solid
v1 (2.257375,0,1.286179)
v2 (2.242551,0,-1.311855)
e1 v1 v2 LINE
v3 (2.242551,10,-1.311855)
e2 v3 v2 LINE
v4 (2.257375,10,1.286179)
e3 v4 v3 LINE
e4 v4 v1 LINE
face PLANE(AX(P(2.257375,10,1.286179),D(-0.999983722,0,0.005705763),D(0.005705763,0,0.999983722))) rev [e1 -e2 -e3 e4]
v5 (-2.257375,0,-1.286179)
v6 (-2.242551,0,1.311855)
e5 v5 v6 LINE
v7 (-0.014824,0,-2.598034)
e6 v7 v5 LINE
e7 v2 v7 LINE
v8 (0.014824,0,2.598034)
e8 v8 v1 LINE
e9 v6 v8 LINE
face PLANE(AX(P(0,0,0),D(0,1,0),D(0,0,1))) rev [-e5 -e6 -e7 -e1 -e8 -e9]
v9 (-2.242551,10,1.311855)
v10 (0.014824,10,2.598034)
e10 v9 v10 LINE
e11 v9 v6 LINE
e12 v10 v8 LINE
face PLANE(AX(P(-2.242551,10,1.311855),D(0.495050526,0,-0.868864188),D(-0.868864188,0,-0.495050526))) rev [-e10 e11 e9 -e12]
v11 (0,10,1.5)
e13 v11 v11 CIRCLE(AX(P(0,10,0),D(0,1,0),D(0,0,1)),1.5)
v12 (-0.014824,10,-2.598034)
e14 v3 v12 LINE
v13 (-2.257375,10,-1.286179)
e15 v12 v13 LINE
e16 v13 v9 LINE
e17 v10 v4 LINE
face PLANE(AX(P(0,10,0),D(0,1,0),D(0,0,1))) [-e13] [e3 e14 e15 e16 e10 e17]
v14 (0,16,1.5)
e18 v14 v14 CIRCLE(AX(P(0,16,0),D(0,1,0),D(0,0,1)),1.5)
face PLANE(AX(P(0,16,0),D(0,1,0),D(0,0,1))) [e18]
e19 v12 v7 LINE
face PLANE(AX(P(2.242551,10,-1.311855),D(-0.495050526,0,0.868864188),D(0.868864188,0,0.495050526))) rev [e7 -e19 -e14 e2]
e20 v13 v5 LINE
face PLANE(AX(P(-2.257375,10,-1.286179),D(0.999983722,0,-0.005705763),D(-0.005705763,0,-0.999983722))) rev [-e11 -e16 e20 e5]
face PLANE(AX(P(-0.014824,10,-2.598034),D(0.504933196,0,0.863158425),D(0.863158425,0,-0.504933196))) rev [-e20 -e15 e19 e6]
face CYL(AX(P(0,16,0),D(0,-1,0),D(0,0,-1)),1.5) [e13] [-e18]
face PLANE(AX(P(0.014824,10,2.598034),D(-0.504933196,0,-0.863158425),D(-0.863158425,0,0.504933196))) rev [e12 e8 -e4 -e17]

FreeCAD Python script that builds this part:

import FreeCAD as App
import Part
import Sketcher

V = App.Vector
Q = App.Units.Quantity

doc = App.newDocument("Part")
body = doc.addObject("PartDesign::Body", "Body")

# Sketch on XZ plane
sketch1 = body.newObject("Sketcher::SketchObject", "Sketch")
sketch1.AttachmentSupport = (doc.getObject("XZ_Plane"), [""])
sketch1.MapMode = "FlatFace"
sketch1.addGeometry(Part.LineSegment(V(2.3, 1.3, 0), V(2.2, -1.3, 0)), False)
sketch1.addGeometry(Part.LineSegment(V(2.2, -1.3, 0), V(0, -2.6, 0)), False)
sketch1.addGeometry(Part.LineSegment(V(0, -2.6, 0), V(-2.3, -1.3, 0)), False)
sketch1.addGeometry(Part.LineSegment(V(-2.3, -1.3, 0), V(-2.2, 1.3, 0)), False)
sketch1.addGeometry(Part.LineSegment(V(-2.2, 1.3, 0), V(0, 2.6, 0)), False)
sketch1.addGeometry(Part.LineSegment(V(0, 2.6, 0), V(2.3, 1.3, 0)), False)
sketch1.addConstraint(Sketcher.Constraint("Coincident", 0, 2, 1, 1))
sketch1.addConstraint(Sketcher.Constraint("Coincident", 1, 2, 2, 1))
sketch1.addConstraint(Sketcher.Constraint("Coincident", 2, 2, 3, 1))
sketch1.addConstraint(Sketcher.Constraint("Coincident", 3, 2, 4, 1))
sketch1.addConstraint(Sketcher.Constraint("Coincident", 4, 2, 5, 1))
sketch1.addConstraint(Sketcher.Constraint("Coincident", 5, 2, 0, 1))
sketch1.addConstraint(Sketcher.Constraint("Symmetric", 0, 2, 3, 2, -1, 1))
sketch1.addConstraint(Sketcher.Constraint("Symmetric", 1, 2, 4, 2, -1, 1))
sketch1.addConstraint(Sketcher.Constraint("Symmetric", 2, 2, 5, 2, -1, 1))
sketch1.addConstraint(Sketcher.Constraint("Equal", 0, 1))
sketch1.addConstraint(Sketcher.Constraint("Equal", 1, 2))
sketch1.addConstraint(Sketcher.Constraint("DistanceX", 2, 2, 4, 2, Q("2.272199 mm")))
sketch1.addConstraint(Sketcher.Constraint("DistanceX", -1, 1, 0, 2, Q("2.242551 mm")))
sketch1.addConstraint(Sketcher.Constraint("DistanceY", 2, 2, -1, 1, Q("1.286179 mm")))
sketch1.addConstraint(Sketcher.Constraint("DistanceY", 1, 2, 0, 2, Q("1.286179 mm")))
pad1 = body.newObject("PartDesign::Pad", "Pad")
pad1.Profile = sketch1
pad1.Length = 10
pad1.Reversed = True

# Sketch on XZ plane
sketch2 = body.newObject("Sketcher::SketchObject", "Sketch001")
sketch2.AttachmentSupport = (doc.getObject("XZ_Plane"), [""])
sketch2.MapMode = "FlatFace"
sketch2.AttachmentOffset = App.Placement(V(0, 0, -10), App.Rotation())
sketch2.addGeometry(Part.Circle(V(0, 0, 0), V(0, 0, 1), 1.5), False)
sketch2.addConstraint(Sketcher.Constraint("Coincident", 0, 3, -1, 1))
sketch2.addConstraint(Sketcher.Constraint("Diameter", 0, Q("3 mm")))
pad2 = body.newObject("PartDesign::Pad", "Pad001")
pad2.Profile = sketch2
pad2.Length = 6
pad2.Reversed = True

doc.recompute()
